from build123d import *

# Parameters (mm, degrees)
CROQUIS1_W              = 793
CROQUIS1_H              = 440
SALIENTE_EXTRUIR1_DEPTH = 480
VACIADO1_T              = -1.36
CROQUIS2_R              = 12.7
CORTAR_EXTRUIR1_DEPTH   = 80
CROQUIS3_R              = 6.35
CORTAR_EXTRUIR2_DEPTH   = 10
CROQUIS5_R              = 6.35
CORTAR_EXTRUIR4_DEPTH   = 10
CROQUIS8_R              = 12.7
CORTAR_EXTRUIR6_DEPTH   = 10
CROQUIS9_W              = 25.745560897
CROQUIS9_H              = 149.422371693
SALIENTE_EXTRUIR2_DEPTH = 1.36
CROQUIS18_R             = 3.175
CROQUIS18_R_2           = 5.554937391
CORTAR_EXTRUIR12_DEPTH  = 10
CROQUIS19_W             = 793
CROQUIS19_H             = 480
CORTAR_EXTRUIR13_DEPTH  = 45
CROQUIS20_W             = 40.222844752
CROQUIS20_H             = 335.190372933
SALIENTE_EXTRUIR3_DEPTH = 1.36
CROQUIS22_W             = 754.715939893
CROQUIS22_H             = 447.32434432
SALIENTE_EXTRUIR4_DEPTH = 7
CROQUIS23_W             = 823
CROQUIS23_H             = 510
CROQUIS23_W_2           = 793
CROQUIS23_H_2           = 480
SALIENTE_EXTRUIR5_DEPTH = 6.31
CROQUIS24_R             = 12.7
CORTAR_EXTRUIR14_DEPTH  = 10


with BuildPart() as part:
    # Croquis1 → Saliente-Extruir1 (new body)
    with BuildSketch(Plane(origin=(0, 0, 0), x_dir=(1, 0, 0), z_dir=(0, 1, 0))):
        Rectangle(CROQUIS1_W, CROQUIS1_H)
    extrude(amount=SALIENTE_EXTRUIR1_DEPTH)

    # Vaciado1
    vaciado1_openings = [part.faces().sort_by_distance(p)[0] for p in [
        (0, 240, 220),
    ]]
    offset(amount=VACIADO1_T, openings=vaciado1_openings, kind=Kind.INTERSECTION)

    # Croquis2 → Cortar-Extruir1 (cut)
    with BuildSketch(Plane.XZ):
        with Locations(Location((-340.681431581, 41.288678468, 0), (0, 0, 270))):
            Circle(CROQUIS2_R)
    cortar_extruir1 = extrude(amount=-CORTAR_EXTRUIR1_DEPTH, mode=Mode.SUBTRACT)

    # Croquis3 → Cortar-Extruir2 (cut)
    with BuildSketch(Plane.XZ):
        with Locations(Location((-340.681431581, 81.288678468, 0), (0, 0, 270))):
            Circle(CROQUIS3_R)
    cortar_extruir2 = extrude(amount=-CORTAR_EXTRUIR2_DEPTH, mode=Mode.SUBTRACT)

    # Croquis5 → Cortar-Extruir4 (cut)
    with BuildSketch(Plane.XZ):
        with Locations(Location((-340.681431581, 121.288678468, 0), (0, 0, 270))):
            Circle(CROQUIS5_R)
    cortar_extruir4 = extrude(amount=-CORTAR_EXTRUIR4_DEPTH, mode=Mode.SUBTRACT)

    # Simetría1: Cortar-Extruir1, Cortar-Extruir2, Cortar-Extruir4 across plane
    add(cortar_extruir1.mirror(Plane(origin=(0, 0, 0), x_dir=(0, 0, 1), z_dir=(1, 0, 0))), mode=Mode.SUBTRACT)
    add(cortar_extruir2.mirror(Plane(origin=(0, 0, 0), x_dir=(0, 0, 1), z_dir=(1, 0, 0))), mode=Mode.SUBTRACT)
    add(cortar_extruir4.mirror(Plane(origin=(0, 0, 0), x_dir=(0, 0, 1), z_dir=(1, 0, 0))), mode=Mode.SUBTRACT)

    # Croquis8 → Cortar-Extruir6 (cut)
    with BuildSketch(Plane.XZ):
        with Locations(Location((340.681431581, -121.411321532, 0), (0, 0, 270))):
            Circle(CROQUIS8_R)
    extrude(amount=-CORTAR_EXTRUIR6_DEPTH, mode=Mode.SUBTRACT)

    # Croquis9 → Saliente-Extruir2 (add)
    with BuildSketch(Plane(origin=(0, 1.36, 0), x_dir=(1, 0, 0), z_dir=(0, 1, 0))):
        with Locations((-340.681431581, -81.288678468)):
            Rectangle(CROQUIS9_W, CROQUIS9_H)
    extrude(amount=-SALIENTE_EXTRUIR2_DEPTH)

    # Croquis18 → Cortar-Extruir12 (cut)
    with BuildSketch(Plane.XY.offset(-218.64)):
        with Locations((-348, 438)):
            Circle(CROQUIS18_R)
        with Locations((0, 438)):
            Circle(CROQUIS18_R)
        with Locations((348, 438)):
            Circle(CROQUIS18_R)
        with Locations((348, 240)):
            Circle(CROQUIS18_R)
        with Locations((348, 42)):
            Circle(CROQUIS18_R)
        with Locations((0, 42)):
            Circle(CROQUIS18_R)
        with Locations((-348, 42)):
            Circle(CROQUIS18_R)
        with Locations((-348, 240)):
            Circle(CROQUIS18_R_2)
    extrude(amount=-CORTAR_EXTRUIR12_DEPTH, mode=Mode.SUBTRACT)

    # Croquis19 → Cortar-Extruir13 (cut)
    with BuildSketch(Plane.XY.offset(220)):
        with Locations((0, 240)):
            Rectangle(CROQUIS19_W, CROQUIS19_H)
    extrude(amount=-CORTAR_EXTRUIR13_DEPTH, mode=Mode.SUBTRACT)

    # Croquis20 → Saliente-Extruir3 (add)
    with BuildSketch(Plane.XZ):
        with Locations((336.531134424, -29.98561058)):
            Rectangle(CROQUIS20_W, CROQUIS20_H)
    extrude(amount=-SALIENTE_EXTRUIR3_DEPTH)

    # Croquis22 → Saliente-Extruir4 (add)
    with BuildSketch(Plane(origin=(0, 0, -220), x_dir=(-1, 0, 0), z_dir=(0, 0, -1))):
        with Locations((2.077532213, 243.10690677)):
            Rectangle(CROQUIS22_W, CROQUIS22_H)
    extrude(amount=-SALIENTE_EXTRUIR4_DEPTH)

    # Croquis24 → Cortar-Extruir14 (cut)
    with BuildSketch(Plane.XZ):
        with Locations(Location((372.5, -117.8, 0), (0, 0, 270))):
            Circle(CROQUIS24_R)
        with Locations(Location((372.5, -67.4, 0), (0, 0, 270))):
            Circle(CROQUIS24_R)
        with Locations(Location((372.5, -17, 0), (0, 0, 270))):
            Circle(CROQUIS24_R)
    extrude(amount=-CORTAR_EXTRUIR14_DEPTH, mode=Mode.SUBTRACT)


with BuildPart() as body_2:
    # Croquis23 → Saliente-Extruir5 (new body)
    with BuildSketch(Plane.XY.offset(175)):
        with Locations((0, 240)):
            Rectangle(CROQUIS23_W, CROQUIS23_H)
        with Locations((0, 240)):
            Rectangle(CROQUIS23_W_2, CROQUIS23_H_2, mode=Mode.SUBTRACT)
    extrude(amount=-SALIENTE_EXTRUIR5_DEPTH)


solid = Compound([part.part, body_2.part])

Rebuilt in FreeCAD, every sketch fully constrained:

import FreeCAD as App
import Part
import Sketcher
from FreeCAD import Vector


def faces_at(feature, points):
    """Names of the faces that lie closest to the given points."""
    faces = feature.Shape.Faces
    near = lambda p: min(range(len(faces)), key=lambda i: faces[i].distToShape(Part.Vertex(*p))[0])
    return sorted({f"Face{near(p) + 1}" for p in points})


def add_polygon(sketch, points):
    """Adds a closed chain of lines whose ends are joined by coincident constraints."""
    first, n = sketch.GeometryCount, len(points)
    for a, b in zip(points, points[1:] + points[:1]):
        sketch.addGeometry(Part.LineSegment(App.Vector(*a, 0), App.Vector(*b, 0)), False)
    for i in range(n):
        sketch.addConstraint(Sketcher.Constraint("Coincident", first + i, 2, first + (i + 1) % n, 1))

doc = App.newDocument("Part")
body = doc.addObject("PartDesign::Body", "Body")

# Sketch on XZ plane
sketch1 = body.newObject("Sketcher::SketchObject", "Sketch")
sketch1.AttachmentSupport = (doc.getObject("XZ_Plane"), [""])
sketch1.MapMode = "FlatFace"
add_polygon(sketch1, [(-396, -220), (-396, 220), (396, 220), (396, -220)])  # lines 0-3
sketch1.addConstraint([
    Sketcher.Constraint("Vertical", 0),
    Sketcher.Constraint("Horizontal", 1),
    Sketcher.Constraint("Vertical", 2),
    Sketcher.Constraint("Horizontal", 3),
    Sketcher.Constraint("Symmetric", 0, 2, 2, 2, -1, 1),
    Sketcher.Constraint("DistanceX", 1, 1, 1, 2, 793.0),
    Sketcher.Constraint("DistanceY", 0, 1, 0, 2, 440.0),
])
pad1 = body.newObject("PartDesign::Pad", "Pad")
pad1.Profile = sketch1
pad1.Length = 480
pad1.Reversed = True
doc.recompute()

thickness = body.newObject("PartDesign::Thickness", "Thickness")
thickness.Base = (pad1, faces_at(pad1, [(0, 240, 220)]))
thickness.Value = 1.36
thickness.Reversed = True
thickness.Join = "Intersection"

# Sketch on XZ plane
sketch2 = body.newObject("Sketcher::SketchObject", "Sketch001")
sketch2.AttachmentSupport = (doc.getObject("XZ_Plane"), [""])
sketch2.MapMode = "FlatFace"
sketch2.addGeometry(Part.Circle(Vector(-341, 41, 0), Vector(0, 0, 1), 13), False)
sketch2.addConstraint([
    Sketcher.Constraint("Diameter", 0, 25.4),
    Sketcher.Constraint("DistanceX", 0, 3, -1, 1, 340.681432),
    Sketcher.Constraint("DistanceY", -1, 1, 0, 3, 41.288678),
])
pocket1 = body.newObject("PartDesign::Pocket", "Pocket")
pocket1.Profile = sketch2
pocket1.Length = 80

# Sketch on XZ plane
sketch3 = body.newObject("Sketcher::SketchObject", "Sketch002")
sketch3.AttachmentSupport = (doc.getObject("XZ_Plane"), [""])
sketch3.MapMode = "FlatFace"
sketch3.addGeometry(Part.Circle(Vector(-341, 81, 0), Vector(0, 0, 1), 6), False)
sketch3.addConstraint([
    Sketcher.Constraint("Diameter", 0, 12.7),
    Sketcher.Constraint("DistanceX", 0, 3, -1, 1, 340.681432),
    Sketcher.Constraint("DistanceY", -1, 1, 0, 3, 81.288678),
])
pocket2 = body.newObject("PartDesign::Pocket", "Pocket001")
pocket2.Profile = sketch3
pocket2.Length = 10

# Sketch on XZ plane
sketch4 = body.newObject("Sketcher::SketchObject", "Sketch003")
sketch4.AttachmentSupport = (doc.getObject("XZ_Plane"), [""])
sketch4.MapMode = "FlatFace"
sketch4.addGeometry(Part.Circle(Vector(-341, 121, 0), Vector(0, 0, 1), 6), False)
sketch4.addConstraint([
    Sketcher.Constraint("Diameter", 0, 12.7),
    Sketcher.Constraint("DistanceX", 0, 3, -1, 1, 340.681432),
    Sketcher.Constraint("DistanceY", -1, 1, 0, 3, 121.288678),
])
pocket3 = body.newObject("PartDesign::Pocket", "Pocket002")
pocket3.Profile = sketch4
pocket3.Length = 10
doc.recompute()

mirrored = body.newObject("PartDesign::Mirrored", "Mirrored")
mirrored.Originals = [pocket1, pocket2, pocket3]
mirrored.MirrorPlane = (doc.getObject("YZ_Plane"), [""])
body.Tip = mirrored

# Sketch on XZ plane
sketch5 = body.newObject("Sketcher::SketchObject", "Sketch004")
sketch5.AttachmentSupport = (doc.getObject("XZ_Plane"), [""])
sketch5.MapMode = "FlatFace"
sketch5.addGeometry(Part.Circle(Vector(341, -121, 0), Vector(0, 0, 1), 13), False)
sketch5.addConstraint([
    Sketcher.Constraint("Diameter", 0, 25.4),
    Sketcher.Constraint("DistanceX", -1, 1, 0, 3, 340.681432),
    Sketcher.Constraint("DistanceY", 0, 3, -1, 1, 121.411322),
])
pocket4 = body.newObject("PartDesign::Pocket", "Pocket003")
pocket4.Profile = sketch5
pocket4.Length = 10

# Sketch on XZ plane
sketch6 = body.newObject("Sketcher::SketchObject", "Sketch005")
sketch6.AttachmentSupport = (doc.getObject("XZ_Plane"), [""])
sketch6.MapMode = "FlatFace"
sketch6.AttachmentOffset = App.Placement(Vector(0, 0, -1.36), App.Rotation())
add_polygon(sketch6, [(-354, 7), (-354, 156), (-328, 156), (-328, 7)])  # lines 0-3
sketch6.addConstraint([
    Sketcher.Constraint("Vertical", 0),
    Sketcher.Constraint("Horizontal", 1),
    Sketcher.Constraint("Vertical", 2),
    Sketcher.Constraint("Horizontal", 3),
    Sketcher.Constraint("DistanceX", 1, 1, 1, 2, 25.745561),
    Sketcher.Constraint("DistanceY", 0, 1, 0, 2, 149.422372),
    Sketcher.Constraint("DistanceX", 1, 2, -1, 1, 327.808651),
    Sketcher.Constraint("DistanceY", -1, 1, 0, 2, 155.999864),
])
pad2 = body.newObject("PartDesign::Pad", "Pad001")
pad2.Profile = sketch6
pad2.Length = 1.36

# Sketch on XY plane
sketch7 = body.newObject("Sketcher::SketchObject", "Sketch006")
sketch7.AttachmentSupport = (doc.getObject("XY_Plane"), [""])
sketch7.MapMode = "FlatFace"
sketch7.AttachmentOffset = App.Placement(Vector(0, 0, -218.64), App.Rotation())
sketch7.addGeometry([
    Part.Circle(Vector(-348, 438, 0), Vector(0, 0, 1), 3.2),  # 0
    Part.Circle(Vector(0, 438, 0), Vector(0, 0, 1), 3.2),  # 1
    Part.Circle(Vector(348, 438, 0), Vector(0, 0, 1), 3.2),  # 2
    Part.Circle(Vector(348, 240, 0), Vector(0, 0, 1), 3.2),  # 3
    Part.Circle(Vector(348, 42, 0), Vector(0, 0, 1), 3.2),  # 4
    Part.Circle(Vector(0, 42, 0), Vector(0, 0, 1), 3.2),  # 5
    Part.Circle(Vector(-348, 42, 0), Vector(0, 0, 1), 3.2),  # 6
    Part.Circle(Vector(-348, 240, 0), Vector(0, 0, 1), 5.6),  # 7
], False)
sketch7.addConstraint([
    Sketcher.Constraint("Equal", 0, 1),
    Sketcher.Constraint("Equal", 1, 2),
    Sketcher.Constraint("Equal", 2, 3),
    Sketcher.Constraint("Equal", 3, 4),
    Sketcher.Constraint("Equal", 4, 5),
    Sketcher.Constraint("Equal", 5, 6),
    Sketcher.Constraint("Symmetric", 0, 3, 2, 3, -2),
    Sketcher.Constraint("Symmetric", 4, 3, 6, 3, -2),
    Sketcher.Constraint("Symmetric", 3, 3, 7, 3, -2),
    Sketcher.Constraint("PointOnObject", 1, 3, -2),
    Sketcher.Constraint("PointOnObject", 5, 3, -2),
    Sketcher.Constraint("Horizontal", 0, 3, 1, 3),
    Sketcher.Constraint("Horizontal", 4, 3, 5, 3),
    Sketcher.Constraint("Vertical", 2, 3, 3, 3),
    Sketcher.Constraint("Vertical", 3, 3, 4, 3),
    Sketcher.Constraint("Diameter", 0, 6.35),
    Sketcher.Constraint("DistanceX", 0, 3, -1, 1, 348.0),
    Sketcher.Constraint("DistanceY", -1, 1, 0, 3, 438.0),
    Sketcher.Constraint("DistanceY", -1, 1, 3, 3, 240.0),
    Sketcher.Constraint("DistanceY", -1, 1, 4, 3, 42.0),
    Sketcher.Constraint("Diameter", 7, 11.109875),
])
pocket5 = body.newObject("PartDesign::Pocket", "Pocket004")
pocket5.Profile = sketch7
pocket5.Length = 10

# Sketch on XY plane
sketch8 = body.newObject("Sketcher::SketchObject", "Sketch007")
sketch8.AttachmentSupport = (doc.getObject("XY_Plane"), [""])
sketch8.MapMode = "FlatFace"
sketch8.AttachmentOffset = App.Placement(Vector(0, 0, 220), App.Rotation())
add_polygon(sketch8, [(-396, 480), (-396, 0), (396, 0), (396, 480)])  # lines 0-3
sketch8.addConstraint([
    Sketcher.Constraint("Vertical", 0),
    Sketcher.Constraint("Horizontal", 1),
    Sketcher.Constraint("Vertical", 2),
    Sketcher.Constraint("Horizontal", 3),
    Sketcher.Constraint("Symmetric", 0, 2, 1, 2, -1, 1),
    Sketcher.Constraint("DistanceX", 1, 1, 1, 2, 793.0),
    Sketcher.Constraint("DistanceY", 0, 2, 0, 1, 480.0),
])
pocket6 = body.newObject("PartDesign::Pocket", "Pocket005")
pocket6.Profile = sketch8
pocket6.Length = 45

# Sketch on XZ plane
sketch9 = body.newObject("Sketcher::SketchObject", "Sketch008")
sketch9.AttachmentSupport = (doc.getObject("XZ_Plane"), [""])
sketch9.MapMode = "FlatFace"
add_polygon(sketch9, [(316, 138), (316, -198), (357, -198), (357, 138)])  # lines 0-3
sketch9.addConstraint([
    Sketcher.Constraint("Vertical", 0),
    Sketcher.Constraint("Horizontal", 1),
    Sketcher.Constraint("Vertical", 2),
    Sketcher.Constraint("Horizontal", 3),
    Sketcher.Constraint("DistanceX", 1, 1, 1, 2, 40.222845),
    Sketcher.Constraint("DistanceY", 0, 2, 0, 1, 335.190373),
    Sketcher.Constraint("DistanceX", -1, 1, 0, 2, 316.419712),
    Sketcher.Constraint("DistanceY", 0, 2, -1, 1, 197.580797),
])
pad3 = body.newObject("PartDesign::Pad", "Pad002")
pad3.Profile = sketch9
pad3.Length = 1.36
pad3.Reversed = True

# Sketch on XY plane
sketch10 = body.newObject("Sketcher::SketchObject", "Sketch009")
sketch10.AttachmentSupport = (doc.getObject("XY_Plane"), [""])
sketch10.MapMode = "FlatFace"
sketch10.AttachmentOffset = App.Placement(Vector(0, 0, -220), App.Rotation())
add_polygon(sketch10, [(375, 467), (375, 19), (-379, 19), (-379, 467)])  # lines 0-3
sketch10.addConstraint([
    Sketcher.Constraint("Vertical", 0),
    Sketcher.Constraint("Horizontal", 1),
    Sketcher.Constraint("Vertical", 2),
    Sketcher.Constraint("Horizontal", 3),
    Sketcher.Constraint("DistanceX", 1, 2, 1, 1, 754.71594),
    Sketcher.Constraint("DistanceY", 0, 2, 0, 1, 447.324344),
    Sketcher.Constraint("DistanceY", -1, 1, 2, 2, 466.769079),
    Sketcher.Constraint("DistanceX", -1, 1, 0, 2, 375.280438),
])
pad4 = body.newObject("PartDesign::Pad", "Pad003")
pad4.Profile = sketch10
pad4.Length = 7

# Sketch on XZ plane
sketch11 = body.newObject("Sketcher::SketchObject", "Sketch010")
sketch11.AttachmentSupport = (doc.getObject("XZ_Plane"), [""])
sketch11.MapMode = "FlatFace"
sketch11.addGeometry([
    Part.Circle(Vector(372, -118, 0), Vector(0, 0, 1), 13),
    Part.Circle(Vector(372, -67, 0), Vector(0, 0, 1), 13),
    Part.Circle(Vector(372, -17, 0), Vector(0, 0, 1), 13),
], False)
sketch11.addConstraint([
    Sketcher.Constraint("Equal", 0, 1),
    Sketcher.Constraint("Equal", 1, 2),
    Sketcher.Constraint("Vertical", 0, 3, 1, 3),
    Sketcher.Constraint("Vertical", 1, 3, 2, 3),
    Sketcher.Constraint("Diameter", 0, 25.4),
    Sketcher.Constraint("DistanceY", 2, 3, -1, 1, 17.0),
    Sketcher.Constraint("DistanceX", -1, 1, 0, 3, 372.5),
    Sketcher.Constraint("DistanceY", 0, 3, -1, 1, 117.8),
    Sketcher.Constraint("DistanceY", 1, 3, -1, 1, 67.4),
])
pocket7 = body.newObject("PartDesign::Pocket", "Pocket006")
pocket7.Profile = sketch11
pocket7.Length = 10
body2 = doc.addObject("PartDesign::Body", "Body001")

# Sketch on XY plane
sketch12 = body2.newObject("Sketcher::SketchObject", "Sketch011")
sketch12.AttachmentSupport = (doc.getObject("XY_Plane001"), [""])
sketch12.MapMode = "FlatFace"
sketch12.AttachmentOffset = App.Placement(Vector(0, 0, 175), App.Rotation())
add_polygon(sketch12, [(-412, 495), (-412, -15), (412, -15), (412, 495)])  # lines 0-3
add_polygon(sketch12, [(396, 0), (-396, 0), (-396, 480), (396, 480)])  # lines 4-7
sketch12.addConstraint([
    Sketcher.Constraint("Vertical", 0),
    Sketcher.Constraint("Horizontal", 1),
    Sketcher.Constraint("Vertical", 2),
    Sketcher.Constraint("Horizontal", 3),
    Sketcher.Constraint("Horizontal", 4),
    Sketcher.Constraint("Vertical", 5),
    Sketcher.Constraint("Horizontal", 6),
    Sketcher.Constraint("Vertical", 7),
    Sketcher.Constraint("Symmetric", 4, 2, 7, 2, -1, 1),
    Sketcher.Constraint("DistanceX", 1, 1, 1, 2, 823.0),
    Sketcher.Constraint("DistanceX", 4, 2, 4, 1, 793.0),
    Sketcher.Constraint("DistanceY", 0, 2, 0, 1, 510.0),
    Sketcher.Constraint("DistanceY", 5, 1, 5, 2, 480.0),
    Sketcher.Constraint("DistanceY", 0, 2, -1, 1, 15.0),
    Sketcher.Constraint("DistanceX", 0, 2, 4, 2, 15.0),
])
pad5 = body2.newObject("PartDesign::Pad", "Pad004")
pad5.Profile = sketch12
pad5.Length = 6.31
pad5.Reversed = True

doc.recompute()
